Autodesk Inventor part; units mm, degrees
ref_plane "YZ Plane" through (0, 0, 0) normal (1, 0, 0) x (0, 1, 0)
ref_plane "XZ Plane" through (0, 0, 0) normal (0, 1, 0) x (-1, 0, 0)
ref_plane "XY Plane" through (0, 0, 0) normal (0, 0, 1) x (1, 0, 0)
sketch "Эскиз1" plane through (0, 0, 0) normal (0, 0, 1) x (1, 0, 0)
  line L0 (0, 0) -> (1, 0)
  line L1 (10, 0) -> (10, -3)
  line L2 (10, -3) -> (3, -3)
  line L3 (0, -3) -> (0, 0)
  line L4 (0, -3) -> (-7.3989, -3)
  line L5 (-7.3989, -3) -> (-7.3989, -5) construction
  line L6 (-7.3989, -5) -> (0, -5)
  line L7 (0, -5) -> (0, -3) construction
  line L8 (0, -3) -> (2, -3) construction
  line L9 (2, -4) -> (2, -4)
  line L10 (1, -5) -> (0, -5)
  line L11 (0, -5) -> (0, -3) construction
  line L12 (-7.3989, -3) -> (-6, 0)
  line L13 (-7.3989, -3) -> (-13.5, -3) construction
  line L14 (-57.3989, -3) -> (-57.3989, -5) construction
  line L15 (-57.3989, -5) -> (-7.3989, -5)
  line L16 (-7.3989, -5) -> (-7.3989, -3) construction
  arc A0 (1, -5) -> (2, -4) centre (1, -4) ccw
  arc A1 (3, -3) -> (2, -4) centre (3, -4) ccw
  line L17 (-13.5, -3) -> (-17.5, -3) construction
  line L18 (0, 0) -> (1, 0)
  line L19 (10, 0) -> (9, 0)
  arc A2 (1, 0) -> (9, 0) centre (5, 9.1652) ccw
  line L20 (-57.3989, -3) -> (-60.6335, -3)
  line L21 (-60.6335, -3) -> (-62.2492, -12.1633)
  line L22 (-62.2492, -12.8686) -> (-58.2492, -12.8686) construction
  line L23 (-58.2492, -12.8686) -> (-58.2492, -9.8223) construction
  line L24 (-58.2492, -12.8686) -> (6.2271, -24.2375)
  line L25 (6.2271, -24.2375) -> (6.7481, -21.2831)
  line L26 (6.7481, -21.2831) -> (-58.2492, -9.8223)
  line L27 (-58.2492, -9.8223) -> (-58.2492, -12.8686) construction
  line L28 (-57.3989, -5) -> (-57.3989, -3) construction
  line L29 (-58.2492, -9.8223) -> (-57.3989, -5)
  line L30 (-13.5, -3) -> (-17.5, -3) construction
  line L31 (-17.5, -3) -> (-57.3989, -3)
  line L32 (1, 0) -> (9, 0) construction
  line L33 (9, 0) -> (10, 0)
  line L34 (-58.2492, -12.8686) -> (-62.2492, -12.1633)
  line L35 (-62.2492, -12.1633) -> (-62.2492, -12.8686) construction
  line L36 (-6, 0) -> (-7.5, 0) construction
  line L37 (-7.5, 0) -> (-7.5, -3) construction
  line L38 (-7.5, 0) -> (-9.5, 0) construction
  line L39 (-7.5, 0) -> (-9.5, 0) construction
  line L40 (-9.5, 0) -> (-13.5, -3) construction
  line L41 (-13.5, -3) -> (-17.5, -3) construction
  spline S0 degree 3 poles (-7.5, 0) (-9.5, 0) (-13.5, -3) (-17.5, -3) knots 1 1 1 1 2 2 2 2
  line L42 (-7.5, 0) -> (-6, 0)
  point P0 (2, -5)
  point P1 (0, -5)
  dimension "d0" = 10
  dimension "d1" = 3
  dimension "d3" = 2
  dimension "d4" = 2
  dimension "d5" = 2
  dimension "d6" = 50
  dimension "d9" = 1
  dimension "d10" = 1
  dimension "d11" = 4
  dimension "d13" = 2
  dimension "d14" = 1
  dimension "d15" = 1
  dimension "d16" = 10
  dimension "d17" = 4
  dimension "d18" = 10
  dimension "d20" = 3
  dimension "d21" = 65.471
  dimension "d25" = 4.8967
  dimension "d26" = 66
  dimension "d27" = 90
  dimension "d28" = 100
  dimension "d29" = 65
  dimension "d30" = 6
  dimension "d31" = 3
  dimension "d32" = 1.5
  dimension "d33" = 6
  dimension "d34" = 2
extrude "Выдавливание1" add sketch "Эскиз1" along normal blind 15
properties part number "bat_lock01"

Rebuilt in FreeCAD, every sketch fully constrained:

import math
import FreeCAD as App
import Part
import Sketcher

V = App.Vector
Q = App.Units.Quantity

doc = App.newDocument("Part")
body = doc.addObject("PartDesign::Body", "Body")

# Sketch on XY plane
sketch1 = doc.addObject("Sketcher::SketchObject", "Sketch")
body.addObject(sketch1)
sketch1.AttachmentSupport = (doc.XY_Plane, [""])
sketch1.MapMode = "FlatFace"
sketch1.addGeometry(Part.LineSegment(V(1, 0, 0), V(0, 0, 0)), False)
sketch1.addGeometry(Part.LineSegment(V(0, 0, 0), V(0, -3, 0)), False)
sketch1.addGeometry(Part.LineSegment(V(0, -3, 0), V(-7.3989, -3, 0)), False)
sketch1.addGeometry(Part.LineSegment(V(-7.3989, -3, 0), V(-6, 0, 0)), False)
sketch1.addGeometry(Part.LineSegment(V(-6, 0, 0), V(-7.5, 0, 0)), False)
sketch1.addGeometry(Part.BSplineCurve([V(-7.5, 0, 0), V(-9.5, 0, 0), V(-13.5, -3, 0), V(-17.5, -3, 0)], [4, 4], [1, 2], False, 3, [1, 1, 1, 1], False), False)
sketch1.addGeometry(Part.LineSegment(V(-17.5, -3, 0), V(-60.6335, -3, 0)), False)
sketch1.addGeometry(Part.LineSegment(V(-60.6335, -3, 0), V(-62.2492, -12.1633, 0)), False)
sketch1.addGeometry(Part.LineSegment(V(-62.2492, -12.1633, 0), V(-58.2492, -12.8686, 0)), False)
sketch1.addGeometry(Part.LineSegment(V(-58.2492, -12.8686, 0), V(6.2271, -24.2375, 0)), False)
sketch1.addGeometry(Part.LineSegment(V(6.2271, -24.2375, 0), V(6.7481, -21.2831, 0)), False)
sketch1.addGeometry(Part.LineSegment(V(6.7481, -21.2831, 0), V(-58.2492, -9.8223, 0)), False)
sketch1.addGeometry(Part.LineSegment(V(-58.2492, -9.8223, 0), V(-57.3989, -5, 0)), False)
sketch1.addGeometry(Part.LineSegment(V(-57.3989, -5, 0), V(1, -5, 0)), False)
sketch1.addGeometry(Part.ArcOfCircle(Part.Circle(V(1, -4, 0), V(0, 0, 1), 1), math.radians(-90), math.radians(0)), False)
sketch1.addGeometry(Part.ArcOfCircle(Part.Circle(V(3, -4, 0), V(0, 0, 1), 1), math.radians(90), math.radians(180)), False)
sketch1.addGeometry(Part.LineSegment(V(3, -3, 0), V(10, -3, 0)), False)
sketch1.addGeometry(Part.LineSegment(V(10, -3, 0), V(10, 0, 0)), False)
sketch1.addGeometry(Part.LineSegment(V(10, 0, 0), V(9, 0, 0)), False)
sketch1.addGeometry(Part.ArcOfCircle(Part.Circle(V(5, 9.1652, 0), V(0, 0, 1), 10.000045), math.radians(-113.578067), math.radians(-66.421933)), False)
sketch1.addConstraint(Sketcher.Constraint("Block", 5))
sketch1.addConstraint(Sketcher.Constraint("Coincident", 0, 2, 1, 1))
sketch1.addConstraint(Sketcher.Constraint("Coincident", 1, 2, 2, 1))
sketch1.addConstraint(Sketcher.Constraint("Coincident", 2, 2, 3, 1))
sketch1.addConstraint(Sketcher.Constraint("Coincident", 3, 2, 4, 1))
sketch1.addConstraint(Sketcher.Constraint("Coincident", 4, 2, 5, 1))
sketch1.addConstraint(Sketcher.Constraint("Coincident", 5, 2, 6, 1))
sketch1.addConstraint(Sketcher.Constraint("Coincident", 6, 2, 7, 1))
sketch1.addConstraint(Sketcher.Constraint("Coincident", 7, 2, 8, 1))
sketch1.addConstraint(Sketcher.Constraint("Coincident", 8, 2, 9, 1))
sketch1.addConstraint(Sketcher.Constraint("Coincident", 9, 2, 10, 1))
sketch1.addConstraint(Sketcher.Constraint("Coincident", 10, 2, 11, 1))
sketch1.addConstraint(Sketcher.Constraint("Coincident", 11, 2, 12, 1))
sketch1.addConstraint(Sketcher.Constraint("Coincident", 12, 2, 13, 1))
sketch1.addConstraint(Sketcher.Constraint("Coincident", 13, 2, 14, 1))
sketch1.addConstraint(Sketcher.Constraint("Coincident", 14, 2, 15, 2))
sketch1.addConstraint(Sketcher.Constraint("Coincident", 15, 1, 16, 1))
sketch1.addConstraint(Sketcher.Constraint("Coincident", 16, 2, 17, 1))
sketch1.addConstraint(Sketcher.Constraint("Coincident", 17, 2, 18, 1))
sketch1.addConstraint(Sketcher.Constraint("Coincident", 18, 2, 19, 2))
sketch1.addConstraint(Sketcher.Constraint("Coincident", 19, 1, 0, 1))
sketch1.addConstraint(Sketcher.Constraint("Horizontal", 0))
sketch1.addConstraint(Sketcher.Constraint("Vertical", 1))
sketch1.addConstraint(Sketcher.Constraint("Horizontal", 2))
sketch1.addConstraint(Sketcher.Constraint("Horizontal", 4))
sketch1.addConstraint(Sketcher.Constraint("Horizontal", 6))
sketch1.addConstraint(Sketcher.Constraint("Horizontal", 13))
sketch1.addConstraint(Sketcher.Constraint("Horizontal", 16))
sketch1.addConstraint(Sketcher.Constraint("Vertical", 17))
sketch1.addConstraint(Sketcher.Constraint("Horizontal", 18))
sketch1.addConstraint(Sketcher.Constraint("Coincident", 0, 2, -1, 1))
sketch1.addConstraint(Sketcher.Constraint("PointOnObject", 17, 2, -1))
sketch1.addConstraint(Sketcher.Constraint("Radius", 14, Q("1 mm")))
sketch1.addConstraint(Sketcher.Constraint("Radius", 15, Q("1 mm")))
sketch1.addConstraint(Sketcher.Constraint("Radius", 19, Q("10 mm")))
sketch1.addConstraint(Sketcher.Constraint("DistanceX", 0, 2, 0, 1, Q("1 mm")))
sketch1.addConstraint(Sketcher.Constraint("DistanceX", 18, 2, 18, 1, Q("1 mm")))
sketch1.addConstraint(Sketcher.Constraint("DistanceY", 1, 2, 1, 1, Q("3 mm")))
sketch1.addConstraint(Sketcher.Constraint("DistanceY", 17, 1, 17, 2, Q("3 mm")))
sketch1.addConstraint(Sketcher.Constraint("Distance", 10, Q("3 mm")))
sketch1.addConstraint(Sketcher.Constraint("Distance", 11, Q("66 mm")))
sketch1.addConstraint(Sketcher.Constraint("DistanceX", 4, 2, 4, 1, Q("1.5 mm")))
sketch1.addConstraint(Sketcher.Constraint("DistanceX", -1, 1, 14, 3, Q("1 mm")))
sketch1.addConstraint(Sketcher.Constraint("DistanceY", 14, 3, -1, 1, Q("4 mm")))
sketch1.addConstraint(Sketcher.Constraint("DistanceX", -1, 1, 13, 2, Q("1 mm")))
sketch1.addConstraint(Sketcher.Constraint("DistanceY", 14, 2, -1, 1, Q("4 mm")))
sketch1.addConstraint(Sketcher.Constraint("DistanceX", -1, 1, 15, 1, Q("3 mm")))
sketch1.addConstraint(Sketcher.Constraint("DistanceX", -1, 1, 16, 2, Q("10 mm")))
sketch1.addConstraint(Sketcher.Constraint("DistanceX", 7, 2, 8, 2, Q("4 mm")))
sketch1.addConstraint(Sketcher.Constraint("DistanceX", 7, 2, 11, 2, Q("4 mm")))
sketch1.addConstraint(Sketcher.Constraint("DistanceX", 12, 2, 2, 2, Q("50 mm")))
sketch1.addConstraint(Sketcher.Constraint("Distance", 9, Q("65.471 mm")))
sketch1.addConstraint(Sketcher.Constraint("Distance", 12, Q("4.8967 mm")))
sketch1.addConstraint(Sketcher.Constraint("DistanceX", 2, 2, 2, 1, Q("7.399 mm")))
sketch1.addConstraint(Sketcher.Constraint("DistanceX", 6, 2, 6, 1, Q("43.1335 mm")))
sketch1.addConstraint(Sketcher.Constraint("DistanceX", -1, 1, 9, 2, Q("6.227 mm")))
sketch1.addConstraint(Sketcher.Constraint("DistanceX", -1, 1, 10, 2, Q("6.748 mm")))
sketch1.addConstraint(Sketcher.Constraint("DistanceY", 10, 2, -1, 1, Q("21.283 mm")))
sketch1.addConstraint(Sketcher.Constraint("DistanceY", 7, 2, 11, 2, Q("2.341 mm")))
pad1 = doc.addObject("PartDesign::Pad", "Pad")
body.addObject(pad1)
pad1.Profile = sketch1
pad1.Length = 15

doc.recompute()
